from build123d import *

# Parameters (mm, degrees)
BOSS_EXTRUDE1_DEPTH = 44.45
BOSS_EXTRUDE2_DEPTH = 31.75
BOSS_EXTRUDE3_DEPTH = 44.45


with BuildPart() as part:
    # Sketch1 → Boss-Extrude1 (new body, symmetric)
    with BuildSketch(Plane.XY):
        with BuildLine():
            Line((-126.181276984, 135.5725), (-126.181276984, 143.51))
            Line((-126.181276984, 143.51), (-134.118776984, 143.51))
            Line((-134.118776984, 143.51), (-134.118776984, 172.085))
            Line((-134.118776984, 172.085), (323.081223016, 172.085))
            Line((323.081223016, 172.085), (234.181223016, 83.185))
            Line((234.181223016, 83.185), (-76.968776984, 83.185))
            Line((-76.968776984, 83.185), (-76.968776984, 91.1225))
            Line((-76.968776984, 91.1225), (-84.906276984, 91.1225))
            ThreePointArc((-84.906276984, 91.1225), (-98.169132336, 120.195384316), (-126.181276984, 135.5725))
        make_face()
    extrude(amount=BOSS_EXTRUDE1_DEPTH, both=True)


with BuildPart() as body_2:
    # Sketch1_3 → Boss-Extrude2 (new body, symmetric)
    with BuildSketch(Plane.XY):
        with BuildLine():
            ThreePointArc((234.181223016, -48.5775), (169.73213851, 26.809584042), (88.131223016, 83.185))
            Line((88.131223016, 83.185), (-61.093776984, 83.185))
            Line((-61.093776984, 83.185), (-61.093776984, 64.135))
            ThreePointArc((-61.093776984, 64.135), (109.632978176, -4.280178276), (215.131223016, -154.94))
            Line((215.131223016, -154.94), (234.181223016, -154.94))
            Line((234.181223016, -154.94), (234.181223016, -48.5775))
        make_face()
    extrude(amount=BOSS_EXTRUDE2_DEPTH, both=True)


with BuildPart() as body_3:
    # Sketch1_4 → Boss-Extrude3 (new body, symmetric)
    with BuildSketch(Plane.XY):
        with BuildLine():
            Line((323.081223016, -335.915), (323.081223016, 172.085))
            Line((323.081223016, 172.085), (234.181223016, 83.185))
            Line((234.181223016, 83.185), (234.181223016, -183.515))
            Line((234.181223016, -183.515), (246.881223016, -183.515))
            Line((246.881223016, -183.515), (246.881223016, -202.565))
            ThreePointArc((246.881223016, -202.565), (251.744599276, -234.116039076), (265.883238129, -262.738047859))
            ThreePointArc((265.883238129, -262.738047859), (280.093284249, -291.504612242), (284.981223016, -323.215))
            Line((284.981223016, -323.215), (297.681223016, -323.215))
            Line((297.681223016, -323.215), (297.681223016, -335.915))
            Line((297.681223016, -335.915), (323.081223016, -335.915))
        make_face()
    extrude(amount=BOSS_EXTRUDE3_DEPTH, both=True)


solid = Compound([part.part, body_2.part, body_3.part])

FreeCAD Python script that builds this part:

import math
import FreeCAD as App
import Part
import Sketcher
Q = App.Units.Quantity

doc = App.newDocument("Part")
params = doc.addObject("Spreadsheet::Sheet", "Params")
for row, (alias, value) in enumerate([
    ("sketch1_width", "18 in"),
    ("sketch1_width2", "12.25 in"),
    ("sketch1_width3", "0.3125 in"),
    ("sketch1_height", "1.125 in"),
    ("pad1_length", "3.5 in"),
    ("sketch2_radius", "15.125 in"),
    ("sketch2_radius2", "12.6875 in"),
    ("sketch2_width", "0.75 in"),
    ("sketch2_width2", "5.875 in"),
    ("sketch2_height", "4.1875 in"),
    ("pad2_length", "2.5 in"),
    ("sketch3_width", "1 in"),
    ("sketch3_height", "20 in"),
    ("sketch3_width2", "0.5 in"),
    ("sketch3_height2", "10.5 in"),
    ("sketch3_radius", "4.125 in"),
    ("pad3_length", "3.5 in"),
], start=1):
    params.set(f"A{row}", alias)
    params.set(f"B{row}", "=" + value)
    params.setAlias(f"B{row}", alias)

body = doc.addObject("PartDesign::Body", "Body")

sketch1 = doc.addObject("Sketcher::SketchObject", "Sketch")
body.addObject(sketch1)
sketch1.AttachmentSupport = (doc.XY_Plane, [""])
sketch1.MapMode = "FlatFace"
sketch1.addGeometry(Part.LineSegment(App.Vector(-126.181277, 143.51, 0), App.Vector(-126.181277, 135.5725, 0)), False)
sketch1.addGeometry(Part.ArcOfCircle(Part.Circle(App.Vector(-135.346246, 85.673779, 0), App.Vector(0, 0, 1), 50.733412), math.radians(6.165405), math.radians(79.592402)), False)
sketch1.addGeometry(Part.LineSegment(App.Vector(-84.906277, 91.1225, 0), App.Vector(-76.968777, 91.1225, 0)), False)
sketch1.addGeometry(Part.LineSegment(App.Vector(-76.968777, 91.1225, 0), App.Vector(-76.968777, 83.185, 0)), False)
sketch1.addGeometry(Part.LineSegment(App.Vector(-76.968777, 83.185, 0), App.Vector(234.181223, 83.185, 0)), False)
sketch1.addGeometry(Part.LineSegment(App.Vector(234.181223, 83.185, 0), App.Vector(323.081223, 172.085, 0)), False)
sketch1.addGeometry(Part.LineSegment(App.Vector(323.081223, 172.085, 0), App.Vector(-134.118777, 172.085, 0)), False)
sketch1.addGeometry(Part.LineSegment(App.Vector(-134.118777, 172.085, 0), App.Vector(-134.118777, 143.51, 0)), False)
sketch1.addGeometry(Part.LineSegment(App.Vector(-134.118777, 143.51, 0), App.Vector(-126.181277, 143.51, 0)), False)
sketch1.addConstraint(Sketcher.Constraint("Coincident", 0, 2, 1, 2))
sketch1.addConstraint(Sketcher.Constraint("Coincident", 1, 1, 2, 1))
sketch1.addConstraint(Sketcher.Constraint("Coincident", 2, 2, 3, 1))
sketch1.addConstraint(Sketcher.Constraint("Coincident", 3, 2, 4, 1))
sketch1.addConstraint(Sketcher.Constraint("Coincident", 4, 2, 5, 1))
sketch1.addConstraint(Sketcher.Constraint("Coincident", 5, 2, 6, 1))
sketch1.addConstraint(Sketcher.Constraint("Coincident", 6, 2, 7, 1))
sketch1.addConstraint(Sketcher.Constraint("Coincident", 7, 2, 8, 1))
sketch1.addConstraint(Sketcher.Constraint("Coincident", 8, 2, 0, 1))
sketch1.addConstraint(Sketcher.Constraint("Vertical", 0))
sketch1.addConstraint(Sketcher.Constraint("Horizontal", 2))
sketch1.addConstraint(Sketcher.Constraint("Vertical", 3))
sketch1.addConstraint(Sketcher.Constraint("Horizontal", 4))
sketch1.addConstraint(Sketcher.Constraint("Horizontal", 6))
sketch1.addConstraint(Sketcher.Constraint("Vertical", 7))
sketch1.addConstraint(Sketcher.Constraint("Horizontal", 8))
sketch1.addConstraint(Sketcher.Constraint("Equal", 2, 8))
sketch1.addConstraint(Sketcher.Constraint("Equal", 8, 0))
sketch1.addConstraint(Sketcher.Constraint("Equal", 0, 3))
sketch1.addConstraint(Sketcher.Constraint("DistanceX", 6, 2, 6, 1, Q("18 in")))
sketch1.addConstraint(Sketcher.Constraint("Angle", 5, Q("45 deg")))
sketch1.addConstraint(Sketcher.Constraint("DistanceX", 4, 1, 4, 2, Q("12.25 in")))
sketch1.addConstraint(Sketcher.Constraint("DistanceX", 4, 2, 5, 2, Q("3.5 in")))
sketch1.addConstraint(Sketcher.Constraint("DistanceX", 2, 1, 2, 2, Q("0.3125 in")))
sketch1.addConstraint(Sketcher.Constraint("DistanceY", 7, 2, 7, 1, Q("1.125 in")))
sketch1.addConstraint(Sketcher.Constraint("DistanceY", -1, 1, 7, 2, Q("5.65 in")))
sketch1.addConstraint(Sketcher.Constraint("Radius", 1, Q("50.733412 mm")))
sketch1.addConstraint(Sketcher.Constraint("DistanceX", 1, 3, -1, 1, Q("135.346246 mm")))
sketch1.setExpression("Constraints[19]", "Params.sketch1_width")
sketch1.setExpression("Constraints[21]", "Params.sketch1_width2")
sketch1.setExpression("Constraints[23]", "Params.sketch1_width3")
sketch1.setExpression("Constraints[24]", "Params.sketch1_height")
pad1 = doc.addObject("PartDesign::Pad", "Pad")
body.addObject(pad1)
pad1.Profile = sketch1
pad1.setExpression("Length", "Params.pad1_length")
pad1.Midplane = True
body2 = doc.addObject("PartDesign::Body", "Body001")

sketch2 = doc.addObject("Sketcher::SketchObject", "Sketch001")
body2.addObject(sketch2)
sketch2.AttachmentSupport = (doc.getObject("XY_Plane001"), [""])
sketch2.MapMode = "FlatFace"
sketch2.addGeometry(Part.ArcOfCircle(Part.Circle(App.Vector(-87.6098, -258.436902, 0), App.Vector(0, 0, 1), 384.175), math.radians(33.110804), math.radians(62.777289)), False)
sketch2.addGeometry(Part.LineSegment(App.Vector(88.131223, 83.185, 0), App.Vector(-61.093777, 83.185, 0)), False)
sketch2.addGeometry(Part.LineSegment(App.Vector(-61.093777, 83.185, 0), App.Vector(-61.093777, 64.135, 0)), False)
sketch2.addGeometry(Part.ArcOfCircle(Part.Circle(App.Vector(-90.619235, -256.772099, 0), App.Vector(0, 0, 1), 322.2625), math.radians(18.420659), math.radians(84.74323)), False)
sketch2.addGeometry(Part.LineSegment(App.Vector(215.131223, -154.94, 0), App.Vector(234.181223, -154.94, 0)), False)
sketch2.addGeometry(Part.LineSegment(App.Vector(234.181223, -154.94, 0), App.Vector(234.181223, -48.5775, 0)), False)
sketch2.addConstraint(Sketcher.Constraint("Coincident", 0, 2, 1, 1))
sketch2.addConstraint(Sketcher.Constraint("Coincident", 1, 2, 2, 1))
sketch2.addConstraint(Sketcher.Constraint("Coincident", 2, 2, 3, 2))
sketch2.addConstraint(Sketcher.Constraint("Coincident", 3, 1, 4, 1))
sketch2.addConstraint(Sketcher.Constraint("Coincident", 4, 2, 5, 1))
sketch2.addConstraint(Sketcher.Constraint("Coincident", 5, 2, 0, 1))
sketch2.addConstraint(Sketcher.Constraint("Horizontal", 1))
sketch2.addConstraint(Sketcher.Constraint("Vertical", 2))
sketch2.addConstraint(Sketcher.Constraint("Horizontal", 4))
sketch2.addConstraint(Sketcher.Constraint("Vertical", 5))
sketch2.addConstraint(Sketcher.Constraint("Equal", 4, 2))
sketch2.addConstraint(Sketcher.Constraint("Radius", 0, Q("15.125 in")))
sketch2.addConstraint(Sketcher.Constraint("Radius", 3, Q("12.6875 in")))
sketch2.addConstraint(Sketcher.Constraint("DistanceX", 0, 2, 3, 1, Q("5 in")))
sketch2.addConstraint(Sketcher.Constraint("DistanceX", 4, 1, 4, 2, Q("0.75 in")))
sketch2.addConstraint(Sketcher.Constraint("DistanceY", 4, 2, -1, 1, Q("6.1 in")))
sketch2.addConstraint(Sketcher.Constraint("DistanceX", 1, 2, 1, 1, Q("5.875 in")))
sketch2.addConstraint(Sketcher.Constraint("DistanceY", 5, 1, 5, 2, Q("4.1875 in")))
sketch2.addConstraint(Sketcher.Constraint("DistanceY", -1, 1, 1, 2, Q("3.275 in")))
sketch2.addConstraint(Sketcher.Constraint("DistanceX", 0, 3, -1, 1, Q("87.6098 mm")))
sketch2.setExpression("Constraints[11]", "Params.sketch2_radius")
sketch2.setExpression("Constraints[12]", "Params.sketch2_radius2")
sketch2.setExpression("Constraints[14]", "Params.sketch2_width")
sketch2.setExpression("Constraints[16]", "Params.sketch2_width2")
sketch2.setExpression("Constraints[17]", "Params.sketch2_height")
pad2 = doc.addObject("PartDesign::Pad", "Pad001")
body2.addObject(pad2)
pad2.Profile = sketch2
pad2.setExpression("Length", "Params.pad2_length")
pad2.Midplane = True
body3 = doc.addObject("PartDesign::Body", "Body002")

sketch3 = doc.addObject("Sketcher::SketchObject", "Sketch002")
body3.addObject(sketch3)
sketch3.AttachmentSupport = (doc.getObject("XY_Plane002"), [""])
sketch3.MapMode = "FlatFace"
sketch3.addGeometry(Part.LineSegment(App.Vector(323.081223, -335.915, 0), App.Vector(323.081223, 172.085, 0)), False)
sketch3.addGeometry(Part.LineSegment(App.Vector(323.081223, 172.085, 0), App.Vector(234.181223, 83.185, 0)), False)
sketch3.addGeometry(Part.LineSegment(App.Vector(234.181223, 83.185, 0), App.Vector(234.181223, -183.515, 0)), False)
sketch3.addGeometry(Part.LineSegment(App.Vector(234.181223, -183.515, 0), App.Vector(246.881223, -183.515, 0)), False)
sketch3.addGeometry(Part.LineSegment(App.Vector(246.881223, -183.515, 0), App.Vector(246.881223, -202.565, 0)), False)
sketch3.addGeometry(Part.ArcOfCircle(Part.Circle(App.Vector(351.656223, -202.565, 0), App.Vector(0, 0, 1), 104.775), math.radians(180), math.radians(215.051137)), False)
sketch3.addGeometry(Part.ArcOfCircle(Part.Circle(App.Vector(179.677056, -323.215, 0), App.Vector(0, 0, 1), 105.304167), math.radians(0), math.radians(35.051137)), False)
sketch3.addGeometry(Part.LineSegment(App.Vector(284.981223, -323.215, 0), App.Vector(297.681223, -323.215, 0)), False)
sketch3.addGeometry(Part.LineSegment(App.Vector(297.681223, -323.215, 0), App.Vector(297.681223, -335.915, 0)), False)
sketch3.addGeometry(Part.LineSegment(App.Vector(297.681223, -335.915, 0), App.Vector(323.081223, -335.915, 0)), False)
sketch3.addConstraint(Sketcher.Constraint("Coincident", 0, 2, 1, 1))
sketch3.addConstraint(Sketcher.Constraint("Coincident", 1, 2, 2, 1))
sketch3.addConstraint(Sketcher.Constraint("Coincident", 2, 2, 3, 1))
sketch3.addConstraint(Sketcher.Constraint("Coincident", 3, 2, 4, 1))
sketch3.addConstraint(Sketcher.Constraint("Tangent", 4, 2, 5, 1))
sketch3.addConstraint(Sketcher.Constraint("Tangent", 5, 2, 6, 2))
sketch3.addConstraint(Sketcher.Constraint("Coincident", 6, 1, 7, 1))
sketch3.addConstraint(Sketcher.Constraint("Coincident", 7, 2, 8, 1))
sketch3.addConstraint(Sketcher.Constraint("Coincident", 8, 2, 9, 1))
sketch3.addConstraint(Sketcher.Constraint("Coincident", 9, 2, 0, 1))
sketch3.addConstraint(Sketcher.Constraint("Vertical", 0))
sketch3.addConstraint(Sketcher.Constraint("Vertical", 2))
sketch3.addConstraint(Sketcher.Constraint("Horizontal", 3))
sketch3.addConstraint(Sketcher.Constraint("Vertical", 4))
sketch3.addConstraint(Sketcher.Constraint("Horizontal", 7))
sketch3.addConstraint(Sketcher.Constraint("Vertical", 8))
sketch3.addConstraint(Sketcher.Constraint("Horizontal", 9))
sketch3.addConstraint(Sketcher.Constraint("Equal", 3, 7))
sketch3.addConstraint(Sketcher.Constraint("Equal", 7, 8))
sketch3.addConstraint(Sketcher.Constraint("DistanceX", 9, 1, 9, 2, Q("1 in")))
sketch3.addConstraint(Sketcher.Constraint("DistanceY", 0, 1, 0, 2, Q("20 in")))
sketch3.addConstraint(Sketcher.Constraint("DistanceX", 3, 1, 3, 2, Q("0.5 in")))
sketch3.addConstraint(Sketcher.Constraint("DistanceY", 2, 2, 2, 1, Q("10.5 in")))
sketch3.addConstraint(Sketcher.Constraint("Angle", 1, Q("-135 deg")))
sketch3.addConstraint(Sketcher.Constraint("Radius", 5, Q("4.125 in")))
sketch3.addConstraint(Sketcher.Constraint("DistanceY", 6, 3, 1, 2, Q("16 in")))
sketch3.addConstraint(Sketcher.Constraint("DistanceY", 2, 2, 0, 2, Q("14 in")))
sketch3.addConstraint(Sketcher.Constraint("DistanceY", 4, 2, 4, 1, Q("0.75 in")))
sketch3.addConstraint(Sketcher.Constraint("DistanceY", 5, 3, -1, 1, Q("7.975 in")))
sketch3.addConstraint(Sketcher.Constraint("DistanceX", -1, 1, 6, 3, Q("7.0738999 in")))
sketch3.setExpression("Constraints[19]", "Params.sketch3_width")
sketch3.setExpression("Constraints[20]", "Params.sketch3_height")
sketch3.setExpression("Constraints[21]", "Params.sketch3_width2")
sketch3.setExpression("Constraints[22]", "Params.sketch3_height2")
sketch3.setExpression("Constraints[24]", "Params.sketch3_radius")
pad3 = doc.addObject("PartDesign::Pad", "Pad002")
body3.addObject(pad3)
pad3.Profile = sketch3
pad3.setExpression("Length", "Params.pad3_length")
pad3.Midplane = True

doc.recompute()
